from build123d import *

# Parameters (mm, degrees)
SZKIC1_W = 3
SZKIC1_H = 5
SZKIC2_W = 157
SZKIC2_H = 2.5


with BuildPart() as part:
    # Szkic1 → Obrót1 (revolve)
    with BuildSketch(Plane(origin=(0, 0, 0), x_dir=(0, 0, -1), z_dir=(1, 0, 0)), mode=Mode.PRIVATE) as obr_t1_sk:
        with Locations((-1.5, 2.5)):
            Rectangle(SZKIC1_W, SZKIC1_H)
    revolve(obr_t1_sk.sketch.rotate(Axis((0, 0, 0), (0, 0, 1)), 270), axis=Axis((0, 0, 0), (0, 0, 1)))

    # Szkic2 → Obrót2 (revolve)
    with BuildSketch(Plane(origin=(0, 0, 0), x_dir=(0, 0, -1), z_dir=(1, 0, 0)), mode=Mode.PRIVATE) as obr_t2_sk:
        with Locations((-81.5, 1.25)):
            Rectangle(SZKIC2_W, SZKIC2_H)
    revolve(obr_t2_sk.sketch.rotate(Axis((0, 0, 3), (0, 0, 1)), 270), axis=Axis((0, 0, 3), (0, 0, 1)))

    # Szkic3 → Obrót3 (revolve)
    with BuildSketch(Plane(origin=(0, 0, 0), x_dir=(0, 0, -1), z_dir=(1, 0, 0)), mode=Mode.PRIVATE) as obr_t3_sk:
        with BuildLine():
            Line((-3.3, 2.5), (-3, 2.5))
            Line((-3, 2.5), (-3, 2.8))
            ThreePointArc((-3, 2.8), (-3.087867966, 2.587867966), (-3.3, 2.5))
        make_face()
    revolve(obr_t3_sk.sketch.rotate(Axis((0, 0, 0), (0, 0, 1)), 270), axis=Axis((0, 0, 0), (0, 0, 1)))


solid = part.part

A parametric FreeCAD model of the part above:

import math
import FreeCAD as App
import Part
import Sketcher

V = App.Vector
Q = App.Units.Quantity


def add_polygon(sketch, points):
    """Adds a closed chain of lines whose ends are joined by coincident constraints."""
    first, n = sketch.GeometryCount, len(points)
    for a, b in zip(points, points[1:] + points[:1]):
        sketch.addGeometry(Part.LineSegment(App.Vector(*a, 0), App.Vector(*b, 0)), False)
    for i in range(n):
        sketch.addConstraint(Sketcher.Constraint("Coincident", first + i, 2, first + (i + 1) % n, 1))

doc = App.newDocument("Part")
body = doc.addObject("PartDesign::Body", "Body")

# Sketch on YZ plane
sketch1 = body.newObject("Sketcher::SketchObject", "Sketch")
sketch1.AttachmentSupport = (doc.getObject("YZ_Plane"), [""])
sketch1.MapMode = "FlatFace"
add_polygon(sketch1, [(5, 3), (0, 3), (0, 0), (5, 0)])  # lines 0-3
sketch1.addConstraint(Sketcher.Constraint("Horizontal", 0))
sketch1.addConstraint(Sketcher.Constraint("Vertical", 1))
sketch1.addConstraint(Sketcher.Constraint("Horizontal", 2))
sketch1.addConstraint(Sketcher.Constraint("Vertical", 3))
sketch1.addConstraint(Sketcher.Constraint("Coincident", 1, 2, -1, 1))
sketch1.addConstraint(Sketcher.Constraint("DistanceX", 0, 2, 0, 1, Q("5 mm")))
sketch1.addConstraint(Sketcher.Constraint("DistanceY", 1, 2, 1, 1, Q("3 mm")))
revolution = body.newObject("PartDesign::Revolution", "Revolution")
revolution.Profile = sketch1
revolution.ReferenceAxis = (sketch1, ["V_Axis"])
revolution.Angle = 360

# Sketch on YZ plane
sketch2 = body.newObject("Sketcher::SketchObject", "Sketch001")
sketch2.AttachmentSupport = (doc.getObject("YZ_Plane"), [""])
sketch2.MapMode = "FlatFace"
add_polygon(sketch2, [(2.5, 160), (0, 160), (0, 3), (2.5, 3)])  # lines 0-3
sketch2.addConstraint(Sketcher.Constraint("Horizontal", 0))
sketch2.addConstraint(Sketcher.Constraint("Vertical", 1))
sketch2.addConstraint(Sketcher.Constraint("Horizontal", 2))
sketch2.addConstraint(Sketcher.Constraint("Vertical", 3))
sketch2.addConstraint(Sketcher.Constraint("PointOnObject", 0, 2, -2))
sketch2.addConstraint(Sketcher.Constraint("DistanceY", 1, 2, 1, 1, Q("157 mm")))
sketch2.addConstraint(Sketcher.Constraint("DistanceX", 0, 2, 0, 1, Q("2.5 mm")))
sketch2.addConstraint(Sketcher.Constraint("DistanceY", -1, 1, 0, 2, Q("160 mm")))
revolution2 = body.newObject("PartDesign::Revolution", "Revolution001")
revolution2.Profile = sketch2
revolution2.ReferenceAxis = (sketch2, ["V_Axis"])
revolution2.Angle = 360

# Sketch on YZ plane
sketch3 = body.newObject("Sketcher::SketchObject", "Sketch002")
sketch3.AttachmentSupport = (doc.getObject("YZ_Plane"), [""])
sketch3.MapMode = "FlatFace"
sketch3.addGeometry(Part.LineSegment(V(2.5, 3.3, 0), V(2.5, 3, 0)), False)
sketch3.addGeometry(Part.LineSegment(V(2.5, 3, 0), V(2.8, 3, 0)), False)
sketch3.addGeometry(Part.ArcOfCircle(Part.Circle(V(2.8, 3.3, 0), V(0, 0, 1), 0.3), math.radians(-180), math.radians(-90)), False)
sketch3.addConstraint(Sketcher.Constraint("Coincident", 0, 2, 1, 1))
sketch3.addConstraint(Sketcher.Constraint("Tangent", 1, 2, 2, 2))
sketch3.addConstraint(Sketcher.Constraint("Tangent", 2, 1, 0, 1))
sketch3.addConstraint(Sketcher.Constraint("Vertical", 0))
sketch3.addConstraint(Sketcher.Constraint("Horizontal", 1))
sketch3.addConstraint(Sketcher.Constraint("Radius", 2, Q("0.3 mm")))
sketch3.addConstraint(Sketcher.Constraint("DistanceY", -1, 1, 0, 2, Q("3 mm")))
sketch3.addConstraint(Sketcher.Constraint("DistanceX", -1, 1, 2, 3, Q("2.8 mm")))
revolution3 = body.newObject("PartDesign::Revolution", "Revolution002")
revolution3.Profile = sketch3
revolution3.ReferenceAxis = (sketch3, ["V_Axis"])
revolution3.Angle = 360

doc.recompute()
